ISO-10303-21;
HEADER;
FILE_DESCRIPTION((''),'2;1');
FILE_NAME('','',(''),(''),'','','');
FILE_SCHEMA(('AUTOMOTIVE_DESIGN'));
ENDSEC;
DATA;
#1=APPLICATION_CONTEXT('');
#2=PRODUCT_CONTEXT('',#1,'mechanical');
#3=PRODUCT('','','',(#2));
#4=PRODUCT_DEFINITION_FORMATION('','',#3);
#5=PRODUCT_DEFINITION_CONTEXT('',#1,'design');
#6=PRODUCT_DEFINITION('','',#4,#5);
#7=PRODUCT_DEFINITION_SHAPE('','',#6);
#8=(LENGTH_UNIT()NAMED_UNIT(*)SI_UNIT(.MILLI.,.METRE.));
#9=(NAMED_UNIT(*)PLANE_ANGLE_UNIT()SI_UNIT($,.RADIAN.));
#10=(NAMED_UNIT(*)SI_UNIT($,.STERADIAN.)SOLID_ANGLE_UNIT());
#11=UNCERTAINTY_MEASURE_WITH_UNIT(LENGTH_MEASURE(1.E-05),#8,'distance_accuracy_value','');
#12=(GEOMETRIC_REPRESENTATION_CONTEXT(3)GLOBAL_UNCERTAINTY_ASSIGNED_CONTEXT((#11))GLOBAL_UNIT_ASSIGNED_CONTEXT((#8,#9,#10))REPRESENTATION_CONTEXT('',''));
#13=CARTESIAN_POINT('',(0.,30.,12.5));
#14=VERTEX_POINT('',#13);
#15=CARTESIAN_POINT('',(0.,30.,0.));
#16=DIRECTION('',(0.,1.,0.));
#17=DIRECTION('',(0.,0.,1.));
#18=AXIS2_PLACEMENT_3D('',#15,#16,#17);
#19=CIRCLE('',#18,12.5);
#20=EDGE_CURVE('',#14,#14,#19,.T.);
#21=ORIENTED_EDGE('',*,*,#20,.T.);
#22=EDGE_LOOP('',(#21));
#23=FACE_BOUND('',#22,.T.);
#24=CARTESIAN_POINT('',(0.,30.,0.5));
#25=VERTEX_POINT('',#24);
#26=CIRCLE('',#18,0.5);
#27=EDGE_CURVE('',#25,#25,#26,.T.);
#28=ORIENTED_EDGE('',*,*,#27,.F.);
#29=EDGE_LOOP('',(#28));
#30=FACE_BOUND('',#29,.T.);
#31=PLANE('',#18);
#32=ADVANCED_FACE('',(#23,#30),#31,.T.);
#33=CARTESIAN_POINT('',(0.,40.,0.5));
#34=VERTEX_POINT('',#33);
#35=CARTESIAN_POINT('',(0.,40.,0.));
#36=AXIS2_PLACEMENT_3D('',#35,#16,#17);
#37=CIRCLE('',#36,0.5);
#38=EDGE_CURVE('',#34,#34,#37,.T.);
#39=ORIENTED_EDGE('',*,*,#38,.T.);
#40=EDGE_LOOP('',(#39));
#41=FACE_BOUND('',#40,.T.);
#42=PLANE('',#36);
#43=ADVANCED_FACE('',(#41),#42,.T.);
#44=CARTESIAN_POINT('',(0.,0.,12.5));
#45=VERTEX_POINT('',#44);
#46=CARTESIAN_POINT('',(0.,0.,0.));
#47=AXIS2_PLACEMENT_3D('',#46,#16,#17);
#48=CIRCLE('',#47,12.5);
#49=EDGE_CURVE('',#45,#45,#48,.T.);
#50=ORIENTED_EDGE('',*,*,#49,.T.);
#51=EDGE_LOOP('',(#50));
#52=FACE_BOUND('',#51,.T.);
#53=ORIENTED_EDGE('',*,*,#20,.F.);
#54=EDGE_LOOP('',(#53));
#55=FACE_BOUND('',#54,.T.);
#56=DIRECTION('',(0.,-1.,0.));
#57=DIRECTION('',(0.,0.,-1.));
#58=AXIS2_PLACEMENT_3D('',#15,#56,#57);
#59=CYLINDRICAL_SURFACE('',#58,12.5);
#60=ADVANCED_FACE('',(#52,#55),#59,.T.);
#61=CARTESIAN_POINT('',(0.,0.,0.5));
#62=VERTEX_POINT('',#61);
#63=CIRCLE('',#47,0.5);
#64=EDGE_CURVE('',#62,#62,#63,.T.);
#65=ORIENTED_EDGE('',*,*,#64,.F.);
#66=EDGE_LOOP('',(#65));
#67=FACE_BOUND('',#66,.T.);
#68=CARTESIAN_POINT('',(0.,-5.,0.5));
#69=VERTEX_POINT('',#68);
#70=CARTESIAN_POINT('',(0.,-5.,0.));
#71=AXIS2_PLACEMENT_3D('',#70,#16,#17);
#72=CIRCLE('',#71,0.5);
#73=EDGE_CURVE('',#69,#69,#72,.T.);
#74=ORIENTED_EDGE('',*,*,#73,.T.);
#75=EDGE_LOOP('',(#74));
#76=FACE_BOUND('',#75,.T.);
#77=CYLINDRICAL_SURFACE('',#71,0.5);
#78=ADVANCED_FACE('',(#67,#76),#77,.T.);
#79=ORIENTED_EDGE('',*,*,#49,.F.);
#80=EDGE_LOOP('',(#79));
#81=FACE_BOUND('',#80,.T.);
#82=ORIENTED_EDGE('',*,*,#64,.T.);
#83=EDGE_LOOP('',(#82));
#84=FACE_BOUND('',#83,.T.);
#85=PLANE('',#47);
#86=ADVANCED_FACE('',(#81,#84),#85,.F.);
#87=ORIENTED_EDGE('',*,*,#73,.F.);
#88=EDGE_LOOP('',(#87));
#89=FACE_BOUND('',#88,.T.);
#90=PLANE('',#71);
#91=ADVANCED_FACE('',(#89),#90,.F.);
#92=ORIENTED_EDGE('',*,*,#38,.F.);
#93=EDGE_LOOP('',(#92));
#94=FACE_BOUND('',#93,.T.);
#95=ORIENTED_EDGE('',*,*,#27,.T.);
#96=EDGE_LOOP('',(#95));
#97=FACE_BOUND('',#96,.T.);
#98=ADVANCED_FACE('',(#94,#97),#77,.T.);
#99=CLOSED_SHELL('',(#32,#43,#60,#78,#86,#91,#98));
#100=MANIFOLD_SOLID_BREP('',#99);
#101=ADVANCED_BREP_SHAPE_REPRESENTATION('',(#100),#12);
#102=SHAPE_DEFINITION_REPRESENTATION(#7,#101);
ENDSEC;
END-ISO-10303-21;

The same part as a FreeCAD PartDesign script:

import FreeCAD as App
import Part
import Sketcher
from FreeCAD import Vector

doc = App.newDocument("Part")
body = doc.addObject("PartDesign::Body", "Body")

# Sketch on XZ plane
sketch1 = body.newObject("Sketcher::SketchObject", "Sketch")
sketch1.AttachmentSupport = (doc.getObject("XZ_Plane"), [""])
sketch1.MapMode = "FlatFace"
sketch1.addGeometry(Part.Circle(Vector(0, 0, 0), Vector(0, 0, 1), 12), False)
sketch1.addConstraint([
    Sketcher.Constraint("Coincident", 0, 3, -1, 1),
    Sketcher.Constraint("Diameter", 0, 25.0),
])
pad1 = body.newObject("PartDesign::Pad", "Pad")
pad1.Profile = sketch1
pad1.Length = 30
pad1.Reversed = True

# Sketch on XZ plane
sketch2 = body.newObject("Sketcher::SketchObject", "Sketch001")
sketch2.AttachmentSupport = (doc.getObject("XZ_Plane"), [""])
sketch2.MapMode = "FlatFace"
sketch2.AttachmentOffset = App.Placement(Vector(0, 0, -30), App.Rotation())
sketch2.addGeometry(Part.Circle(Vector(0, 0, 0), Vector(0, 0, 1), 0.5), False)
sketch2.addConstraint([
    Sketcher.Constraint("Coincident", 0, 3, -1, 1),
    Sketcher.Constraint("Diameter", 0, 1.0),
])
pad2 = body.newObject("PartDesign::Pad", "Pad001")
pad2.Profile = sketch2
pad2.Type = "TwoLengths"
pad2.Length = 10
pad2.Length2 = 35
pad2.Reversed = True

doc.recompute()
